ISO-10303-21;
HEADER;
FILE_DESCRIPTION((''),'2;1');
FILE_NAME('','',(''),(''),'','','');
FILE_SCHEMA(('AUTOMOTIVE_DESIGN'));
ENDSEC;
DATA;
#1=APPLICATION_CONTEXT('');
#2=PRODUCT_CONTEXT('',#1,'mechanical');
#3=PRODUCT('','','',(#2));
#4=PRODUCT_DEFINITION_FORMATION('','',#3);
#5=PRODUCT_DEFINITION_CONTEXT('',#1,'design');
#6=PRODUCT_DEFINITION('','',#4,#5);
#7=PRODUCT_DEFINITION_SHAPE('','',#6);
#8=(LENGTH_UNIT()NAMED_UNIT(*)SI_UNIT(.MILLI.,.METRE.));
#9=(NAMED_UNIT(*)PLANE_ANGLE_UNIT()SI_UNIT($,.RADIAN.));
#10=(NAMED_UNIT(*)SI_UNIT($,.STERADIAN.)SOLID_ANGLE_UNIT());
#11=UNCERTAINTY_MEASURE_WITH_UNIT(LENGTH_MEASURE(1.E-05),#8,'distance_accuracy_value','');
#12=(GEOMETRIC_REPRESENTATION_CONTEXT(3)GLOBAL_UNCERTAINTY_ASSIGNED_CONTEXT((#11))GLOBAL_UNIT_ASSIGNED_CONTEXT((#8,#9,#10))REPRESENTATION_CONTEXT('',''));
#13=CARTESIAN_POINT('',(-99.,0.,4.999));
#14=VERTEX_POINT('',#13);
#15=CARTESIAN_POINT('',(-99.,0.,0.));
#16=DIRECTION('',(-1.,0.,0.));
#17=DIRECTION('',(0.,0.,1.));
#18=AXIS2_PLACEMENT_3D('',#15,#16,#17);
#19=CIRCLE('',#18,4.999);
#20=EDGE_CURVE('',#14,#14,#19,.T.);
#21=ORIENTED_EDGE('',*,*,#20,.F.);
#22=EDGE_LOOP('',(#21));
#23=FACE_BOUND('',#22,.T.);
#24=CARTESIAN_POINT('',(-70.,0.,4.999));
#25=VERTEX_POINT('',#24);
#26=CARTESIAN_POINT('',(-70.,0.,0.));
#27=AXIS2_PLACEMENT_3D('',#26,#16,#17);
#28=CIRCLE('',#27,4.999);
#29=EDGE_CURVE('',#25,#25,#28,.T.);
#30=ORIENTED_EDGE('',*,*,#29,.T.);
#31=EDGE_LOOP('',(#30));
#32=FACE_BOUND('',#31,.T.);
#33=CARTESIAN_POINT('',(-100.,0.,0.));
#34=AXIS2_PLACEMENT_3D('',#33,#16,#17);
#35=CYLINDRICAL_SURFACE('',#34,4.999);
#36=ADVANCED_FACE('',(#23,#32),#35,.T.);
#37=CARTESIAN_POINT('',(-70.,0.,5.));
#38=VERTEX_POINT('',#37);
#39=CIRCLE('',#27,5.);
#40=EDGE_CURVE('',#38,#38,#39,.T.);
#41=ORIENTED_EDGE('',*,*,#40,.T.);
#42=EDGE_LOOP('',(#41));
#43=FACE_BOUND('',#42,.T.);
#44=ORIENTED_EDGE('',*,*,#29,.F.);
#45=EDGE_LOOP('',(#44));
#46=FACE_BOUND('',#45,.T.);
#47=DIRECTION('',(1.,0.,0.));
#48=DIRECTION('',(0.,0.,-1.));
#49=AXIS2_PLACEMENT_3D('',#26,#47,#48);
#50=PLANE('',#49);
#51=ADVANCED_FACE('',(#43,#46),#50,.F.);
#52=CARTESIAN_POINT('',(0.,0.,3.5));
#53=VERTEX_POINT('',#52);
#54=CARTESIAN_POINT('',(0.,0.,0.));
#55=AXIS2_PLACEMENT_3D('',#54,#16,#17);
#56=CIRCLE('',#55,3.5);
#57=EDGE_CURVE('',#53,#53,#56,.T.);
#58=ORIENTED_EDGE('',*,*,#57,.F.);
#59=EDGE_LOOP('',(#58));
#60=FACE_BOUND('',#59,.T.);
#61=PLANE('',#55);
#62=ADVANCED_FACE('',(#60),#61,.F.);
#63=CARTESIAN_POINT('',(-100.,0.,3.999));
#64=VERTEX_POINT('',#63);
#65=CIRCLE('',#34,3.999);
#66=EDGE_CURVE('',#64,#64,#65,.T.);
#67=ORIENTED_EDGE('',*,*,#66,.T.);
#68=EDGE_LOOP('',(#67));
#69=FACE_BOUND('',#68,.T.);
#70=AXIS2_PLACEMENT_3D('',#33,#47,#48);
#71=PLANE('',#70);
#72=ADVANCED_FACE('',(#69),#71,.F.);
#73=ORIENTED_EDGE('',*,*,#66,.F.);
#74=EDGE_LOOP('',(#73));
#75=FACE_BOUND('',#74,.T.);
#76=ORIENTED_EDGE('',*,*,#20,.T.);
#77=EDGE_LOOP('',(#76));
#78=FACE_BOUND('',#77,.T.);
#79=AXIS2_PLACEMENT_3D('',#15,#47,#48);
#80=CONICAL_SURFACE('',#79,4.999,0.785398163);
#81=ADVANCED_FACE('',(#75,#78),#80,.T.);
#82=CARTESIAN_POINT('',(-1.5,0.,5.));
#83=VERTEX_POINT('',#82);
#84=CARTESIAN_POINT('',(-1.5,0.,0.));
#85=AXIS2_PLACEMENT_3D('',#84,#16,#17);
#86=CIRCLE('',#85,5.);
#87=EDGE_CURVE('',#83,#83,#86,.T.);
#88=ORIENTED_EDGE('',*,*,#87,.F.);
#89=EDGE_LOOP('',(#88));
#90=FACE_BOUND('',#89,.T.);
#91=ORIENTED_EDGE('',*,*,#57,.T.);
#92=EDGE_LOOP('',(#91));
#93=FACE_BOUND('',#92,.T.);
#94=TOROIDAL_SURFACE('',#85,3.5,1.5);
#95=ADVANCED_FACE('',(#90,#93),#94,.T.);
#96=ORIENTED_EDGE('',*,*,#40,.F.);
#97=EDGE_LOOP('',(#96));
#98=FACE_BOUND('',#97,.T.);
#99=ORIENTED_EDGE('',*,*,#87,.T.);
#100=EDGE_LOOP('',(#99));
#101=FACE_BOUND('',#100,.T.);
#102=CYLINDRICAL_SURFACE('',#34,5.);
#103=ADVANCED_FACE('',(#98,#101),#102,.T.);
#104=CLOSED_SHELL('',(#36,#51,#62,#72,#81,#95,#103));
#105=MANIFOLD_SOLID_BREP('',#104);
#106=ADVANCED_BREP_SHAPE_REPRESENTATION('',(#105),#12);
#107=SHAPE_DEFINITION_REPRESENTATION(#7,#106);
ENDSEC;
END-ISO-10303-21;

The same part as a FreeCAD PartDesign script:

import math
import FreeCAD as App
import Part
import Sketcher
Q = App.Units.Quantity

doc = App.newDocument("Part")
params = doc.addObject("Spreadsheet::Sheet", "Params")
for row, (alias, value) in enumerate([
    ("sketch1_radius", "1.5 mm"),
    ("sketch1_width", "100 mm"),
    ("sketch1_width2", "29 mm"),
    ("sketch1_width3", "68.5 mm"),
    ("sketch1_height", "3.5 mm"),
    ("revolution_angle", "360 deg"),
], start=1):
    params.set(f"A{row}", alias)
    params.set(f"B{row}", "=" + value)
    params.setAlias(f"B{row}", alias)

body = doc.addObject("PartDesign::Body", "Body")

# Sketch on XY plane
sketch1 = doc.addObject("Sketcher::SketchObject", "Sketch")
body.addObject(sketch1)
sketch1.AttachmentSupport = (doc.XY_Plane, [""])
sketch1.MapMode = "FlatFace"
sketch1.addGeometry(Part.LineSegment(App.Vector(-100, 0, 0), App.Vector(0, 0, 0)), False)
sketch1.addGeometry(Part.LineSegment(App.Vector(0, 0, 0), App.Vector(0, 3.5, 0)), False)
sketch1.addGeometry(Part.ArcOfCircle(Part.Circle(App.Vector(-1.5, 3.5, 0), App.Vector(0, 0, 1), 1.5), math.radians(0), math.radians(90)), False)
sketch1.addGeometry(Part.LineSegment(App.Vector(-1.5, 5, 0), App.Vector(-70, 5, 0)), False)
sketch1.addGeometry(Part.LineSegment(App.Vector(-70, 5, 0), App.Vector(-70, 4.999, 0)), False)
sketch1.addGeometry(Part.LineSegment(App.Vector(-70, 4.999, 0), App.Vector(-99, 4.999, 0)), False)
sketch1.addGeometry(Part.LineSegment(App.Vector(-99, 4.999, 0), App.Vector(-100, 3.999, 0)), False)
sketch1.addGeometry(Part.LineSegment(App.Vector(-100, 3.999, 0), App.Vector(-100, 0, 0)), False)
sketch1.addConstraint(Sketcher.Constraint("Coincident", 0, 2, 1, 1))
sketch1.addConstraint(Sketcher.Constraint("Tangent", 1, 2, 2, 1))
sketch1.addConstraint(Sketcher.Constraint("Tangent", 2, 2, 3, 1))
sketch1.addConstraint(Sketcher.Constraint("Coincident", 3, 2, 4, 1))
sketch1.addConstraint(Sketcher.Constraint("Coincident", 4, 2, 5, 1))
sketch1.addConstraint(Sketcher.Constraint("Coincident", 5, 2, 6, 1))
sketch1.addConstraint(Sketcher.Constraint("Coincident", 6, 2, 7, 1))
sketch1.addConstraint(Sketcher.Constraint("Coincident", 7, 2, 0, 1))
sketch1.addConstraint(Sketcher.Constraint("Horizontal", 0))
sketch1.addConstraint(Sketcher.Constraint("Vertical", 1))
sketch1.addConstraint(Sketcher.Constraint("Horizontal", 3))
sketch1.addConstraint(Sketcher.Constraint("Vertical", 4))
sketch1.addConstraint(Sketcher.Constraint("Horizontal", 5))
sketch1.addConstraint(Sketcher.Constraint("Vertical", 7))
sketch1.addConstraint(Sketcher.Constraint("Coincident", 0, 2, -1, 1))
sketch1.addConstraint(Sketcher.Constraint("Radius", 2, Q("1.5 mm")))
sketch1.addConstraint(Sketcher.Constraint("DistanceX", 0, 1, 0, 2, Q("100 mm")))
sketch1.addConstraint(Sketcher.Constraint("DistanceX", 5, 2, 5, 1, Q("29 mm")))
sketch1.addConstraint(Sketcher.Constraint("Angle", 6, Q("-135 deg")))
sketch1.addConstraint(Sketcher.Constraint("DistanceX", 3, 2, 3, 1, Q("68.5 mm")))
sketch1.addConstraint(Sketcher.Constraint("DistanceY", 1, 1, 1, 2, Q("3.5 mm")))
sketch1.addConstraint(Sketcher.Constraint("DistanceY", 4, 2, 4, 1, Q("0.001 mm")))
sketch1.setExpression("Constraints[15]", "Params.sketch1_radius")
sketch1.setExpression("Constraints[16]", "Params.sketch1_width")
sketch1.setExpression("Constraints[17]", "Params.sketch1_width2")
sketch1.setExpression("Constraints[19]", "Params.sketch1_width3")
sketch1.setExpression("Constraints[20]", "Params.sketch1_height")
revolution = doc.addObject("PartDesign::Revolution", "Revolution")
body.addObject(revolution)
revolution.Profile = sketch1
revolution.ReferenceAxis = (sketch1, ["H_Axis"])
revolution.setExpression("Angle", "Params.revolution_angle")

doc.recompute()
